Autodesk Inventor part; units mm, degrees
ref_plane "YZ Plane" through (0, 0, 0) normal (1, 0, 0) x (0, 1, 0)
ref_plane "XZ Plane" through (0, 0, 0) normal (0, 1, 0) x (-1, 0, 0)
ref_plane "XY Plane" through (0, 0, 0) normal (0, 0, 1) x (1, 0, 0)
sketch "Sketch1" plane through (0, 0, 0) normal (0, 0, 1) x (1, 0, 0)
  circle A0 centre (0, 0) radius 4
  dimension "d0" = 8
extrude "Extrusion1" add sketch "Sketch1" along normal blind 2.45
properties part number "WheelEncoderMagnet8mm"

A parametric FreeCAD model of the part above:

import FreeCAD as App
import Part
import Sketcher

V = App.Vector

doc = App.newDocument("Part")
body = doc.addObject("PartDesign::Body", "Body")

sketch1 = body.newObject("Sketcher::SketchObject", "Sketch")
sketch1.AttachmentSupport = (doc.getObject("XY_Plane"), [""])
sketch1.MapMode = "FlatFace"
sketch1.addGeometry(Part.Circle(V(0, 0, 0), V(0, 0, 1), 4), False)
sketch1.addConstraint(Sketcher.Constraint("Coincident", 0, 3, -1, 1))
sketch1.addConstraint(Sketcher.Constraint("Diameter", 0, 8.0))
pad1 = body.newObject("PartDesign::Pad", "Pad")
pad1.Profile = sketch1
pad1.Length = 2.45

doc.recompute()
